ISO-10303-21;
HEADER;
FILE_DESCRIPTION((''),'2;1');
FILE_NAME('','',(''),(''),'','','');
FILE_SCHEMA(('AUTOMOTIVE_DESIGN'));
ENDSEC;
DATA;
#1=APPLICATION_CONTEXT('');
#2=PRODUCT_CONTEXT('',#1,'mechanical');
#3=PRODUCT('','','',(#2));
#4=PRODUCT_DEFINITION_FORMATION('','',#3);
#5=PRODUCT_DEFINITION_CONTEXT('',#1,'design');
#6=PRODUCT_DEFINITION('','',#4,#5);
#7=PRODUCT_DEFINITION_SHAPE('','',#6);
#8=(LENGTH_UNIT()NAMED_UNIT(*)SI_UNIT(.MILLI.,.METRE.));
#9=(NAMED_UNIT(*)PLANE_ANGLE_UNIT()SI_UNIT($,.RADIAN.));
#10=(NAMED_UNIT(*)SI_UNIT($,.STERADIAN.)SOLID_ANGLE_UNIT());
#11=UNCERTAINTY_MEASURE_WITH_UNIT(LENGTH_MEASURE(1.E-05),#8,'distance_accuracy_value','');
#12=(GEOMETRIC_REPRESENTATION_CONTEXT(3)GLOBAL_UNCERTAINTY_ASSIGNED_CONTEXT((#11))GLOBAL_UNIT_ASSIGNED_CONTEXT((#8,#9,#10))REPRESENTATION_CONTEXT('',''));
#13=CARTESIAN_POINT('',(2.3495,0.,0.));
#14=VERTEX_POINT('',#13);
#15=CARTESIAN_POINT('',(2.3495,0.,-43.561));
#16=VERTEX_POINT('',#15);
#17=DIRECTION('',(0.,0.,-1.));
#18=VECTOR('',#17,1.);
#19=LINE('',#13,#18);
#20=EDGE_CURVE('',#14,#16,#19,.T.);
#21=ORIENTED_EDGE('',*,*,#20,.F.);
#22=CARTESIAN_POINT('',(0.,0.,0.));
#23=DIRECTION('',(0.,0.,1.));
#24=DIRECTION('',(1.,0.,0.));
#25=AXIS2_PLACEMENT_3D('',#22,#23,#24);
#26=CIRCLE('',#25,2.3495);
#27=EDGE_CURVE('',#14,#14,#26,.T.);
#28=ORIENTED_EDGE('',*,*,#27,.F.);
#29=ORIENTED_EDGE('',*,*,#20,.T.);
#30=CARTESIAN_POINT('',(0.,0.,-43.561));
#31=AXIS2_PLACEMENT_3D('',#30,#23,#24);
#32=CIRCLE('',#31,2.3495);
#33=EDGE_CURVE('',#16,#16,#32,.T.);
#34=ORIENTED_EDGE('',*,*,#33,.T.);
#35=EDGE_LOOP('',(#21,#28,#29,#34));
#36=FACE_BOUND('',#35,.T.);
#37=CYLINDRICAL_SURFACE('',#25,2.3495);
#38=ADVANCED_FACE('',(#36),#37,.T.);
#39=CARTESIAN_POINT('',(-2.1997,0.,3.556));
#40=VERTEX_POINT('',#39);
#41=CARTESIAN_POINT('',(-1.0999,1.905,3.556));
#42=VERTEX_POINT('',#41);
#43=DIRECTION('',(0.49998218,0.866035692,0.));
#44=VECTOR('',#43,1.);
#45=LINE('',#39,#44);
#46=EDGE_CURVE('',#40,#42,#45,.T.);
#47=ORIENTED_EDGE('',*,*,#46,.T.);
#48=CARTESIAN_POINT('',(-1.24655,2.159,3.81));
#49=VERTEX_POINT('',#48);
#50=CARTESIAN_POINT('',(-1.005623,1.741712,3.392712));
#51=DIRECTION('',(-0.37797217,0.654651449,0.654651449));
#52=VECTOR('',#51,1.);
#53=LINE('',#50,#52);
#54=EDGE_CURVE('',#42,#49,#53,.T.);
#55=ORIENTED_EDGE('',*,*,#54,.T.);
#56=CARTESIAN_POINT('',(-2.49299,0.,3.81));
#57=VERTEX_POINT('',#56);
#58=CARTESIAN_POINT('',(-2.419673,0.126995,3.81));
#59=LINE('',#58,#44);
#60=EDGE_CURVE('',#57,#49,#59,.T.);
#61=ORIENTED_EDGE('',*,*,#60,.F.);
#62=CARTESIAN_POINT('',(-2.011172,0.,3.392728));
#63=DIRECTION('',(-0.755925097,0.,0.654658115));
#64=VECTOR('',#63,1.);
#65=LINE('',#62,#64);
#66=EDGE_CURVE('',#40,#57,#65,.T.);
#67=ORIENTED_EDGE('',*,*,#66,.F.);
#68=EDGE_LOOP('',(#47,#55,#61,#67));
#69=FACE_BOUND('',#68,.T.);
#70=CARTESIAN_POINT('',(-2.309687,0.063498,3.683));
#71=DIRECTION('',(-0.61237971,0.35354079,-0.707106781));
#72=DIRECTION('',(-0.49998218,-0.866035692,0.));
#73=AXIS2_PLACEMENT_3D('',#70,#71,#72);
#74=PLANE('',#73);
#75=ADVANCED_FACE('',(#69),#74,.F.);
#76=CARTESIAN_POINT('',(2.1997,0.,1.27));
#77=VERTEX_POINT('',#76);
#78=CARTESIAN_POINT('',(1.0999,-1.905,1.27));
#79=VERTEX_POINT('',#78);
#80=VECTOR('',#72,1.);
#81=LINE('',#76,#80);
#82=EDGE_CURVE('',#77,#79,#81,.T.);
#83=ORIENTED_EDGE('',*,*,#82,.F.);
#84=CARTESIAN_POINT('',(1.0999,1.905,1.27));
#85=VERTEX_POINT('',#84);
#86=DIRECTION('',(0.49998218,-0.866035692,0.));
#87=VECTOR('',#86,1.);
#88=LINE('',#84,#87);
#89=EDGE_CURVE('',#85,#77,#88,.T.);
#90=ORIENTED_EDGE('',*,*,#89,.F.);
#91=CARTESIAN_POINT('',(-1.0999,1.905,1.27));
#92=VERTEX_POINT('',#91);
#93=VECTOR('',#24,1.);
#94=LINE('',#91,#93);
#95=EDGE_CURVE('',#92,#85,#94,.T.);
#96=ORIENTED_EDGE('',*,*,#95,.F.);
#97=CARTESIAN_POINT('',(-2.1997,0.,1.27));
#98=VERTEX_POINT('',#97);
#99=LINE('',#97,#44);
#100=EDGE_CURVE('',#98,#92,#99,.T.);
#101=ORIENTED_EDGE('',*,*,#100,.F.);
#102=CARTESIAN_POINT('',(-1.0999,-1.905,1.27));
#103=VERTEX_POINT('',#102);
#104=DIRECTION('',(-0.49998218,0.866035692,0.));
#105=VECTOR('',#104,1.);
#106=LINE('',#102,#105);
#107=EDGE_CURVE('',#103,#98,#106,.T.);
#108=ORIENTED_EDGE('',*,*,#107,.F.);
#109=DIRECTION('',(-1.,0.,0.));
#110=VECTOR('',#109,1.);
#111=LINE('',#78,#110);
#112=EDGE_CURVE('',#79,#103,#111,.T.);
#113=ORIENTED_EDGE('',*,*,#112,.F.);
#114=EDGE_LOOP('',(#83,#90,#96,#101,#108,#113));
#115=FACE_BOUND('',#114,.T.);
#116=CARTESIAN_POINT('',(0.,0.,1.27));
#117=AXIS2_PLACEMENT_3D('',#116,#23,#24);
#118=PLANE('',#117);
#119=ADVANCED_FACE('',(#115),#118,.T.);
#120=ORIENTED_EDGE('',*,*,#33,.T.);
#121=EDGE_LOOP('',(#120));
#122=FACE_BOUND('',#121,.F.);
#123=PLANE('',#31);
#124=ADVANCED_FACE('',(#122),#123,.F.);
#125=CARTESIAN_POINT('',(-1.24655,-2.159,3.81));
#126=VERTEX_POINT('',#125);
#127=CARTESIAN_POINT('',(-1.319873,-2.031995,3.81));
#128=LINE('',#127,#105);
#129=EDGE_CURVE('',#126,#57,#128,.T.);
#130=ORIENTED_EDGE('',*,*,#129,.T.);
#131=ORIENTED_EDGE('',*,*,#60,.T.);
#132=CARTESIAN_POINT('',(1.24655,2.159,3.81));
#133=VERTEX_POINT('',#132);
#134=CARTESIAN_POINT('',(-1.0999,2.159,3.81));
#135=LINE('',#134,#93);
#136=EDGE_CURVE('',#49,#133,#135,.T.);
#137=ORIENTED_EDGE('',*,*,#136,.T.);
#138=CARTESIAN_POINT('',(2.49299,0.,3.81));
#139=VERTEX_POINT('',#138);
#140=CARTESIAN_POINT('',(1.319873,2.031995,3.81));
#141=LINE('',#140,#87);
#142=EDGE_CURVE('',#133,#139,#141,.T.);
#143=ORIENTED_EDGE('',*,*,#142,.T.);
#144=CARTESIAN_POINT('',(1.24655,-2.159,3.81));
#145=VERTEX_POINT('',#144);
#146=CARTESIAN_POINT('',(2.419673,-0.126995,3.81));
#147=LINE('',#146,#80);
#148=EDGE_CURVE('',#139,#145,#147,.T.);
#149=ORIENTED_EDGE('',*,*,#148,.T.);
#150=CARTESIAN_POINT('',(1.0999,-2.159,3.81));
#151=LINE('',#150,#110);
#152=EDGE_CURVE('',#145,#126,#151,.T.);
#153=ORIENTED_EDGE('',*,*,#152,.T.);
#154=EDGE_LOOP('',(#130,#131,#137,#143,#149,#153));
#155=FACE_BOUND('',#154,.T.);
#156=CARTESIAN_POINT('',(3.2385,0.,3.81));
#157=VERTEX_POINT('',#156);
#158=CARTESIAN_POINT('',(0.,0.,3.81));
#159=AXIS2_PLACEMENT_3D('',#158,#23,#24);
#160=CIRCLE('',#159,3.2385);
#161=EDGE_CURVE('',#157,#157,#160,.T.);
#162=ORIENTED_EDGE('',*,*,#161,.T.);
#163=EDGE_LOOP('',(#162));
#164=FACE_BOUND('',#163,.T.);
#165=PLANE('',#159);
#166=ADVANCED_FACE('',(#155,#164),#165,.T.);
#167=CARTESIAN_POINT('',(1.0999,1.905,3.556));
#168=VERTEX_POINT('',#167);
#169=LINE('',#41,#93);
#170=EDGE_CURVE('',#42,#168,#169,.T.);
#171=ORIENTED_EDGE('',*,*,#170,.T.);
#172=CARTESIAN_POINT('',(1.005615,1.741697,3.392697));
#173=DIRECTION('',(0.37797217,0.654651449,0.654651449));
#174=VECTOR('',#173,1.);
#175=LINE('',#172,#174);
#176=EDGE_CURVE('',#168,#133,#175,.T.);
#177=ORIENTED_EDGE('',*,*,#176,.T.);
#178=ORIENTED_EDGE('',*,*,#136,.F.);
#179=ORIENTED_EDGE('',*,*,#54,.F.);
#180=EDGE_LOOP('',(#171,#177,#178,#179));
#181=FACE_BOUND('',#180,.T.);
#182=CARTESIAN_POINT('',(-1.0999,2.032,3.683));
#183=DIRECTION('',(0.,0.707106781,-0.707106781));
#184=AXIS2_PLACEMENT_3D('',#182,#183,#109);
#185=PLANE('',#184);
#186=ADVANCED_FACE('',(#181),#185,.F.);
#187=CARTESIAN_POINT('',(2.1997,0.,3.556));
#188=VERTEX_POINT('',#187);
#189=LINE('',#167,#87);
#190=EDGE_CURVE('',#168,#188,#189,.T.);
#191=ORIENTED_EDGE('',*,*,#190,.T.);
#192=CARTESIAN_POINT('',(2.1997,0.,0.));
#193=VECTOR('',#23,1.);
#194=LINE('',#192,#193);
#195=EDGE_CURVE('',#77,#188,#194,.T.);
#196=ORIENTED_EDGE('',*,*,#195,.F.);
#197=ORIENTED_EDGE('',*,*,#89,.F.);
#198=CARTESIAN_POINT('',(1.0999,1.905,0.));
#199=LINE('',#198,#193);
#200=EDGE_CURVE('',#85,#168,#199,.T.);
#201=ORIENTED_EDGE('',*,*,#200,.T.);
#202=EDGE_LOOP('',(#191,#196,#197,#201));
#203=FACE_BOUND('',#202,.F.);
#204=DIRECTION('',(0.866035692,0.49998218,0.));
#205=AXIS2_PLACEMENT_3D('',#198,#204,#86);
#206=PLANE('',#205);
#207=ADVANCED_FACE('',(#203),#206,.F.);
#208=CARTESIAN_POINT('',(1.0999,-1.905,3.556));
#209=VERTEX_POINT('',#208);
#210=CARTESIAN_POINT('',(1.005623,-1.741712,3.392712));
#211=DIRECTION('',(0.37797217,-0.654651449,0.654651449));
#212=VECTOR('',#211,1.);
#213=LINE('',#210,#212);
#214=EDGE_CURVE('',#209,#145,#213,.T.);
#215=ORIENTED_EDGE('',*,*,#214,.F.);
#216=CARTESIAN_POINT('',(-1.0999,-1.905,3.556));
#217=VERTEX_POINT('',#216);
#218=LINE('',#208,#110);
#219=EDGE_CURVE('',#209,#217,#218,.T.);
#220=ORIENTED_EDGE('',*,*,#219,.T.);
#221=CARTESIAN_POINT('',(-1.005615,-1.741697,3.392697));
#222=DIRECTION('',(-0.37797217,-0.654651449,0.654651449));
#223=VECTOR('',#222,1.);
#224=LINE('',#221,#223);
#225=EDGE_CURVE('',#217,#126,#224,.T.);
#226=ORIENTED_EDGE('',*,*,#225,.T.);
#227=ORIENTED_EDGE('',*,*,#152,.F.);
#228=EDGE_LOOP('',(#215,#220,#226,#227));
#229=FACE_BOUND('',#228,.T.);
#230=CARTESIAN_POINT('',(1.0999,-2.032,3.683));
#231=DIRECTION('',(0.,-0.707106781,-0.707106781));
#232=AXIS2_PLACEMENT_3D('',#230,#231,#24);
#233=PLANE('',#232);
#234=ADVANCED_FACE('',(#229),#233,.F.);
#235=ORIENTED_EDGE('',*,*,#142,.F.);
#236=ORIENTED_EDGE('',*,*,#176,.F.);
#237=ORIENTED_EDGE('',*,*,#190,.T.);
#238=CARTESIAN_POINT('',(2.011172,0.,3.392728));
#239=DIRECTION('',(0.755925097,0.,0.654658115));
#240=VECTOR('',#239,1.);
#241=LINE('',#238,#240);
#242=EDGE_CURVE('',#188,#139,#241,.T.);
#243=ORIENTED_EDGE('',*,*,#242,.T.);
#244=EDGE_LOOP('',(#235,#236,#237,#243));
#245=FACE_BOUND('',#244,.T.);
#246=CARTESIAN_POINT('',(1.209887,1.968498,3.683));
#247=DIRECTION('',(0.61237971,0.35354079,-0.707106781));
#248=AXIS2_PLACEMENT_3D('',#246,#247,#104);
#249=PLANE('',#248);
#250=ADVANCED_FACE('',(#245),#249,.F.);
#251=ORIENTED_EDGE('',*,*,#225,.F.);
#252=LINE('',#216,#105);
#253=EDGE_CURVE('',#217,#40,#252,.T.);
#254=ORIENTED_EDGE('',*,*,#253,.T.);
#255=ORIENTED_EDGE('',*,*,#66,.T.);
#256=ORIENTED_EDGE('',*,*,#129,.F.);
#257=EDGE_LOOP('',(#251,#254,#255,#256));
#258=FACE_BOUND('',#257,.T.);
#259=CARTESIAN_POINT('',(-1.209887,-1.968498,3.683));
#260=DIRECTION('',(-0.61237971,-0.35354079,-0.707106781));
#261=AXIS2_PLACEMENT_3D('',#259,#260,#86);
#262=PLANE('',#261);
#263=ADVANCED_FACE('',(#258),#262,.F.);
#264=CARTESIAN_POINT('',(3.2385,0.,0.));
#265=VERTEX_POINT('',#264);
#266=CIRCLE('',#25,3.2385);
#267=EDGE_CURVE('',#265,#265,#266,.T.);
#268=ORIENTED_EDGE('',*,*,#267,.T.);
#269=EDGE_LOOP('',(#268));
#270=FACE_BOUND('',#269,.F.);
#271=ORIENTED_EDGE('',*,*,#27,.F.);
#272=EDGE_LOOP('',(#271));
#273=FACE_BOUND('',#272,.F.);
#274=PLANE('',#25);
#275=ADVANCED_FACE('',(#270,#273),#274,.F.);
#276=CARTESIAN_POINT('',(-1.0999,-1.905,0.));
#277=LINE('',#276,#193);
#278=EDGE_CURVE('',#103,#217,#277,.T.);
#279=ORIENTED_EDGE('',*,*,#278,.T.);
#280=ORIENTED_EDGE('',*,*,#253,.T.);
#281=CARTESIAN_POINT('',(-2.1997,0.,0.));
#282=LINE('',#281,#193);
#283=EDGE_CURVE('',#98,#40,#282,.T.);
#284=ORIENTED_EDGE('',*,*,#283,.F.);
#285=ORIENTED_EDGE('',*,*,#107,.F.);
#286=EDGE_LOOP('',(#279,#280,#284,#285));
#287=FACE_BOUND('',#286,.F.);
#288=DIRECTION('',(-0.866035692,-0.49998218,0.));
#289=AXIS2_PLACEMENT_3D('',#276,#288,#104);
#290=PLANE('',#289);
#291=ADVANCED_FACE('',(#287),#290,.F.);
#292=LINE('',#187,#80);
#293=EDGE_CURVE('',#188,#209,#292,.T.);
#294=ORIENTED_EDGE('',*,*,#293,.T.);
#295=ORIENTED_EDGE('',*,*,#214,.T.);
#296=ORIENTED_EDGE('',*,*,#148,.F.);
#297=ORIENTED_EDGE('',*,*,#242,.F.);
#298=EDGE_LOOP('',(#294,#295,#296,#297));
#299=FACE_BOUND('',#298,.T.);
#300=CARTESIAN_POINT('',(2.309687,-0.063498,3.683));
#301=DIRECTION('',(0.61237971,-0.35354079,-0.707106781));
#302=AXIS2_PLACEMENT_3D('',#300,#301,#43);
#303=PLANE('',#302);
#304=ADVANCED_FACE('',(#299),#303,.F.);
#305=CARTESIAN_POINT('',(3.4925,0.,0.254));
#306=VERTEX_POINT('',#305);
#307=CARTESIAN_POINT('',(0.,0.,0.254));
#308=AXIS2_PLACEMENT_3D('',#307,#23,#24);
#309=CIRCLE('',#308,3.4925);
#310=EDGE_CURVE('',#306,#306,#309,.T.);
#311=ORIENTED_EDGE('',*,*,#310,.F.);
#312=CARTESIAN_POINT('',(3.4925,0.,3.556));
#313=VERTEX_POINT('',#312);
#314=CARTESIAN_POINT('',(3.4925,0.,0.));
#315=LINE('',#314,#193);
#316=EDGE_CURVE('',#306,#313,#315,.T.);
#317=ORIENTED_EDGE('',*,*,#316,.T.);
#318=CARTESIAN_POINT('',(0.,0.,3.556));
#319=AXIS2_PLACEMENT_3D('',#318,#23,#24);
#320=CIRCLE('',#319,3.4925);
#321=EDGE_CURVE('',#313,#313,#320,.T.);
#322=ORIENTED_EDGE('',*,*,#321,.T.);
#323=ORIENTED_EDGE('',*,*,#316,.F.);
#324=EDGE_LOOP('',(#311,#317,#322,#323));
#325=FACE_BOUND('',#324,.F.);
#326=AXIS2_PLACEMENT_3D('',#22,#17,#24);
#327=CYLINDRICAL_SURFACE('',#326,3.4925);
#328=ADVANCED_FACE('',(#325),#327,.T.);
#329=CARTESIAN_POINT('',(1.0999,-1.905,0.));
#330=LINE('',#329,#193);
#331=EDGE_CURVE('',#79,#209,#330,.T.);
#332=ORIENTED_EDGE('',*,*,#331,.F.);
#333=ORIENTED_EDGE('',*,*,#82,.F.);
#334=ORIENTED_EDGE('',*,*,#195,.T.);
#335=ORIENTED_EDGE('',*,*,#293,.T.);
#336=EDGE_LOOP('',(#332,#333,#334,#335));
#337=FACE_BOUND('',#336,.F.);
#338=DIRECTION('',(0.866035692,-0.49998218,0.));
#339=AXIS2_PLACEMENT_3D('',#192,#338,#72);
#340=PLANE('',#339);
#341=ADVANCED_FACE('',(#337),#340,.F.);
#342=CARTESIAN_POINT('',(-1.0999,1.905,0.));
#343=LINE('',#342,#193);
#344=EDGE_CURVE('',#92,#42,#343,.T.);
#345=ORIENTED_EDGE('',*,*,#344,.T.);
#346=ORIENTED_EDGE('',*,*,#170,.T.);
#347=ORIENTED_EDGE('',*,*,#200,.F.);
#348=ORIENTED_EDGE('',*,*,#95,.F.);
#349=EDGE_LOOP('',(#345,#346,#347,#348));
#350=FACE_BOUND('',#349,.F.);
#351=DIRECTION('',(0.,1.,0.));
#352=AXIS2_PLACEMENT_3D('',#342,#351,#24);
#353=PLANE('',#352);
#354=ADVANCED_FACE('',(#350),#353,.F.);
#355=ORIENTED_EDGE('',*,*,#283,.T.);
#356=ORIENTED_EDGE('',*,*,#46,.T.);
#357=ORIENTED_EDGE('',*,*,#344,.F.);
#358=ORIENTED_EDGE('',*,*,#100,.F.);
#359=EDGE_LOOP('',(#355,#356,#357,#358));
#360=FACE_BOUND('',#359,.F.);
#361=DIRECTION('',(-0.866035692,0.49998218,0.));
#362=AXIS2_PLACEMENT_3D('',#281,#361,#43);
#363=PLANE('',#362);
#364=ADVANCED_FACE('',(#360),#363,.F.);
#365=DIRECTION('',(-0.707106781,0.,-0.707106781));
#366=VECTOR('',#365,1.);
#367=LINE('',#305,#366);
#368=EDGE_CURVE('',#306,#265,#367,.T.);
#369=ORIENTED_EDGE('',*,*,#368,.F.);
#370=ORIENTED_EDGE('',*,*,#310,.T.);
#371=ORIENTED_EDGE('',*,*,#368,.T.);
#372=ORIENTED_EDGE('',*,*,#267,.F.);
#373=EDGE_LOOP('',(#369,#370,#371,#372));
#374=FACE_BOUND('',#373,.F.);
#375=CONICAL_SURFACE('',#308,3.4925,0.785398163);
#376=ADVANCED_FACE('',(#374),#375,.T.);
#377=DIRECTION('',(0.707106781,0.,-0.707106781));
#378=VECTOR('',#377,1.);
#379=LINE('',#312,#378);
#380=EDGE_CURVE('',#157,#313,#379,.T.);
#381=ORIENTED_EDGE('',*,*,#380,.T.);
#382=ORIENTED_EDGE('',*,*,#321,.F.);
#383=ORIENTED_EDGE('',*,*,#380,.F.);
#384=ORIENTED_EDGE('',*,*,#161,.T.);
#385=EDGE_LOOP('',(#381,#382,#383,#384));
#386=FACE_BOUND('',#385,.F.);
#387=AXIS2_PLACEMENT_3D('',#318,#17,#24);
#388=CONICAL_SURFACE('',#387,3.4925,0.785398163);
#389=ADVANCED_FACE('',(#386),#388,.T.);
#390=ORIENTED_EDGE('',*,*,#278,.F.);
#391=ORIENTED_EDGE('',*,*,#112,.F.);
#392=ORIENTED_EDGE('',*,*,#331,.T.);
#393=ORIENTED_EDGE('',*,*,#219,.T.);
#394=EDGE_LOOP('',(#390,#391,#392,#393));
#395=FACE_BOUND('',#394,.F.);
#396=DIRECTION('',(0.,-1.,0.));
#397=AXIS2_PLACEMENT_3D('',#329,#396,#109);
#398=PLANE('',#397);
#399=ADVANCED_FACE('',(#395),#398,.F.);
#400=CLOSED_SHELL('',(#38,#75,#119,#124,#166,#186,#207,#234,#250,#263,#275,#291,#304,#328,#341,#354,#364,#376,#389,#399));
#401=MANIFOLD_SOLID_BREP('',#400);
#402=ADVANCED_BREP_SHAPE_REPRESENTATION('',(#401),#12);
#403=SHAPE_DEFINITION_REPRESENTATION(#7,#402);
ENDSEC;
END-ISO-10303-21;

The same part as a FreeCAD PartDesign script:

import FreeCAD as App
import Part
import Sketcher
Q = App.Units.Quantity


def edges_at(feature, points):
    """Names of the edges that pass closest to the given points."""
    edges = feature.Shape.Edges
    near = lambda p: min(range(len(edges)), key=lambda i: edges[i].distToShape(Part.Vertex(*p))[0])
    return sorted({f"Edge{near(p) + 1}" for p in points})

doc = App.newDocument("Part")
body = doc.addObject("PartDesign::Body", "Body")

# Sketch on XY plane
sketch1 = body.newObject("Sketcher::SketchObject", "Sketch")
sketch1.AttachmentSupport = (doc.getObject("XY_Plane"), [""])
sketch1.MapMode = "FlatFace"
sketch1.addGeometry([
    Part.Circle(App.Vector(0, 0, 0), App.Vector(0, 0, 1), 3.5),  # 0
    Part.LineSegment(App.Vector(2.2, 0, 0), App.Vector(1.1, -1.9, 0)),  # 1
    Part.LineSegment(App.Vector(1.1, -1.9, 0), App.Vector(-1.1, -1.9, 0)),  # 2
    Part.LineSegment(App.Vector(-1.1, -1.9, 0), App.Vector(-2.2, 0, 0)),  # 3
    Part.LineSegment(App.Vector(-2.2, 0, 0), App.Vector(-1.1, 1.9, 0)),  # 4
    Part.LineSegment(App.Vector(-1.1, 1.9, 0), App.Vector(1.1, 1.9, 0)),  # 5
    Part.LineSegment(App.Vector(1.1, 1.9, 0), App.Vector(2.2, 0, 0)),  # 6
], False)
sketch1.addConstraint([
    Sketcher.Constraint("Coincident", 1, 2, 2, 1),
    Sketcher.Constraint("Coincident", 2, 2, 3, 1),
    Sketcher.Constraint("Coincident", 3, 2, 4, 1),
    Sketcher.Constraint("Coincident", 4, 2, 5, 1),
    Sketcher.Constraint("Coincident", 5, 2, 6, 1),
    Sketcher.Constraint("Coincident", 6, 2, 1, 1),
    Sketcher.Constraint("Horizontal", 2),
    Sketcher.Constraint("Horizontal", 5),
    Sketcher.Constraint("Coincident", 0, 3, -1, 1),
    Sketcher.Constraint("Symmetric", 1, 2, 4, 2, -1, 1),
    Sketcher.Constraint("Symmetric", 3, 2, 6, 2, -1, 1),
    Sketcher.Constraint("PointOnObject", 3, 2, -1),
    Sketcher.Constraint("Parallel", 3, 6),
    Sketcher.Constraint("Vertical", 2, 2, 4, 2),
    Sketcher.Constraint("Diameter", 0, Q("0.275 in")),
    Sketcher.Constraint("DistanceY", 2, 2, 4, 2, Q("0.15 in")),
    Sketcher.Constraint("Angle", 1, Q("-119.9988 deg")),
    Sketcher.Constraint("DistanceX", 2, 2, 2, 1, Q("0.0866 in")),
])
pad1 = body.newObject("PartDesign::Pad", "Pad")
pad1.Profile = sketch1
pad1.Length = Q("0.15 in")

# Sketch on XY plane
sketch2 = body.newObject("Sketcher::SketchObject", "Sketch001")
sketch2.AttachmentSupport = (doc.getObject("XY_Plane"), [""])
sketch2.MapMode = "FlatFace"
sketch2.addGeometry(Part.Circle(App.Vector(0, 0, 0), App.Vector(0, 0, 1), 2.3), False)
sketch2.addConstraint([
    Sketcher.Constraint("Coincident", 0, 3, -1, 1),
    Sketcher.Constraint("Diameter", 0, Q("0.185 in")),
])
pad2 = body.newObject("PartDesign::Pad", "Pad001")
pad2.Profile = sketch2
pad2.Length = Q("1.715 in")
pad2.Reversed = True

# Sketch on XY plane
sketch3 = body.newObject("Sketcher::SketchObject", "Sketch002")
sketch3.AttachmentSupport = (doc.getObject("XY_Plane"), [""])
sketch3.MapMode = "FlatFace"
sketch3.addGeometry([
    Part.LineSegment(App.Vector(1.1, -1.9, 0), App.Vector(2.2, 0, 0)),  # 0
    Part.LineSegment(App.Vector(2.2, 0, 0), App.Vector(1.1, 1.9, 0)),  # 1
    Part.LineSegment(App.Vector(1.1, 1.9, 0), App.Vector(-1.1, 1.9, 0)),  # 2
    Part.LineSegment(App.Vector(-1.1, 1.9, 0), App.Vector(-2.2, 0, 0)),  # 3
    Part.LineSegment(App.Vector(-2.2, 0, 0), App.Vector(-1.1, -1.9, 0)),  # 4
    Part.LineSegment(App.Vector(-1.1, -1.9, 0), App.Vector(1.1, -1.9, 0)),  # 5
], False)
sketch3.addConstraint([
    Sketcher.Constraint("Coincident", 0, 2, 1, 1),
    Sketcher.Constraint("Coincident", 1, 2, 2, 1),
    Sketcher.Constraint("Coincident", 2, 2, 3, 1),
    Sketcher.Constraint("Coincident", 3, 2, 4, 1),
    Sketcher.Constraint("Coincident", 4, 2, 5, 1),
    Sketcher.Constraint("Coincident", 5, 2, 0, 1),
    Sketcher.Constraint("Horizontal", 2),
    Sketcher.Constraint("Horizontal", 5),
    Sketcher.Constraint("Symmetric", 0, 2, 3, 2, -1, 1),
    Sketcher.Constraint("Symmetric", 1, 2, 4, 2, -1, 1),
    Sketcher.Constraint("PointOnObject", 0, 2, -1),
    Sketcher.Constraint("Parallel", 0, 3),
    Sketcher.Constraint("Vertical", 2, 2, 4, 2),
    Sketcher.Constraint("DistanceY", 4, 2, 2, 2, Q("0.15 in")),
    Sketcher.Constraint("Angle", 0, Q("60.0012 deg")),
    Sketcher.Constraint("DistanceX", 2, 2, 2, 1, Q("0.0866 in")),
])
pad3 = body.newObject("PartDesign::Pad", "Pad002")
pad3.Profile = sketch3
pad3.Length = Q("0.05 in")
doc.recompute()

chamfer = body.newObject("PartDesign::Chamfer", "Chamfer")
chamfer.Base = (pad3, edges_at(pad3, [
    (-3.493, 0, 3.81),
    (-3.493, 0, 0),
    (-1.65, 0.953, 3.81),
    (-1.65, -0.953, 3.81),
    (0, -1.905, 3.81),
    (1.65, -0.953, 3.81),
    (1.65, 0.953, 3.81),
    (0, 1.905, 3.81),
]))
chamfer.Size = Q("0.01 in")

doc.recompute()
